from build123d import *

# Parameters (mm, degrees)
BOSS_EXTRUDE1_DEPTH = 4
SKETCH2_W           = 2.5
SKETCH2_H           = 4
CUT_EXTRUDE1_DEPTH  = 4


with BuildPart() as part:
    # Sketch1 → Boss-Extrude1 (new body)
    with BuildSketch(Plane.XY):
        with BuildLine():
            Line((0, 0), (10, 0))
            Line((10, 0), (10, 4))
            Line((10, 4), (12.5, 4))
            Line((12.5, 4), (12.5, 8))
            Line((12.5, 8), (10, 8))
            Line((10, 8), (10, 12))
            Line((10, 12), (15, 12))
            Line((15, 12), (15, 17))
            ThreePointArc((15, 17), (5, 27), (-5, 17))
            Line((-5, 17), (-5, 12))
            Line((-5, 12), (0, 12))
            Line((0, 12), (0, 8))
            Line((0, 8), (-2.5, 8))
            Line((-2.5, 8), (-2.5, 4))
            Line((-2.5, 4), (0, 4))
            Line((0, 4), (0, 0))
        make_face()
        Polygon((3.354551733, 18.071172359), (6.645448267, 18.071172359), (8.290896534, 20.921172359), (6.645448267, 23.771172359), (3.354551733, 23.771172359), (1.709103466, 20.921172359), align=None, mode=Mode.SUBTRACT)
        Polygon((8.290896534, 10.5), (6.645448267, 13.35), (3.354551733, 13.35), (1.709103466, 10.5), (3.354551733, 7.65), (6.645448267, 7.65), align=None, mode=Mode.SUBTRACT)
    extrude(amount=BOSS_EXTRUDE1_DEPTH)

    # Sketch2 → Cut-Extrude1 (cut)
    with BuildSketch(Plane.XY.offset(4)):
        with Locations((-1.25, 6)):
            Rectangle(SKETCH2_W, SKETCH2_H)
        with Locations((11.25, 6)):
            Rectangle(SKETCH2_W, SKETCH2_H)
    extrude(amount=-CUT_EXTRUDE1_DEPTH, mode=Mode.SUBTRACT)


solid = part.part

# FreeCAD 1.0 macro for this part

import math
import FreeCAD as App
import Part
import Sketcher
Q = App.Units.Quantity


def add_polygon(sketch, points):
    """Adds a closed chain of lines whose ends are joined by coincident constraints."""
    first, n = sketch.GeometryCount, len(points)
    for a, b in zip(points, points[1:] + points[:1]):
        sketch.addGeometry(Part.LineSegment(App.Vector(*a, 0), App.Vector(*b, 0)), False)
    for i in range(n):
        sketch.addConstraint(Sketcher.Constraint("Coincident", first + i, 2, first + (i + 1) % n, 1))

doc = App.newDocument("Part")
body = doc.addObject("PartDesign::Body", "Body")

sketch1 = doc.addObject("Sketcher::SketchObject", "Sketch")
body.addObject(sketch1)
sketch1.AttachmentSupport = (doc.XY_Plane, [""])
sketch1.MapMode = "FlatFace"
sketch1.addGeometry(Part.LineSegment(App.Vector(0, 0, 0), App.Vector(10, 0, 0)), False)
sketch1.addGeometry(Part.LineSegment(App.Vector(10, 0, 0), App.Vector(10, 4, 0)), False)
sketch1.addGeometry(Part.LineSegment(App.Vector(10, 4, 0), App.Vector(12.5, 4, 0)), False)
sketch1.addGeometry(Part.LineSegment(App.Vector(12.5, 4, 0), App.Vector(12.5, 8, 0)), False)
sketch1.addGeometry(Part.LineSegment(App.Vector(12.5, 8, 0), App.Vector(10, 8, 0)), False)
sketch1.addGeometry(Part.LineSegment(App.Vector(10, 8, 0), App.Vector(10, 12, 0)), False)
sketch1.addGeometry(Part.LineSegment(App.Vector(10, 12, 0), App.Vector(15, 12, 0)), False)
sketch1.addGeometry(Part.LineSegment(App.Vector(15, 12, 0), App.Vector(15, 17, 0)), False)
sketch1.addGeometry(Part.ArcOfCircle(Part.Circle(App.Vector(5, 17, 0), App.Vector(0, 0, 1), 10), math.radians(0), math.radians(180)), False)
sketch1.addGeometry(Part.LineSegment(App.Vector(-5, 17, 0), App.Vector(-5, 12, 0)), False)
sketch1.addGeometry(Part.LineSegment(App.Vector(-5, 12, 0), App.Vector(0, 12, 0)), False)
sketch1.addGeometry(Part.LineSegment(App.Vector(0, 12, 0), App.Vector(0, 8, 0)), False)
sketch1.addGeometry(Part.LineSegment(App.Vector(0, 8, 0), App.Vector(-2.5, 8, 0)), False)
sketch1.addGeometry(Part.LineSegment(App.Vector(-2.5, 8, 0), App.Vector(-2.5, 4, 0)), False)
sketch1.addGeometry(Part.LineSegment(App.Vector(-2.5, 4, 0), App.Vector(0, 4, 0)), False)
sketch1.addGeometry(Part.LineSegment(App.Vector(0, 4, 0), App.Vector(0, 0, 0)), False)
add_polygon(sketch1, [(6.6, 13.3), (8.3, 10.5), (6.6, 7.7), (3.4, 7.7), (1.7, 10.5), (3.4, 13.3)])
add_polygon(sketch1, [(6.6, 18.1), (3.4, 18.1), (1.7, 20.9), (3.4, 23.8), (6.6, 23.8), (8.3, 20.9)])
sketch1.addConstraint(Sketcher.Constraint("Coincident", 0, 2, 1, 1))
sketch1.addConstraint(Sketcher.Constraint("Coincident", 1, 2, 2, 1))
sketch1.addConstraint(Sketcher.Constraint("Coincident", 2, 2, 3, 1))
sketch1.addConstraint(Sketcher.Constraint("Coincident", 3, 2, 4, 1))
sketch1.addConstraint(Sketcher.Constraint("Coincident", 4, 2, 5, 1))
sketch1.addConstraint(Sketcher.Constraint("Coincident", 5, 2, 6, 1))
sketch1.addConstraint(Sketcher.Constraint("Coincident", 6, 2, 7, 1))
sketch1.addConstraint(Sketcher.Constraint("Tangent", 7, 2, 8, 1))
sketch1.addConstraint(Sketcher.Constraint("Tangent", 8, 2, 9, 1))
sketch1.addConstraint(Sketcher.Constraint("Coincident", 9, 2, 10, 1))
sketch1.addConstraint(Sketcher.Constraint("Coincident", 10, 2, 11, 1))
sketch1.addConstraint(Sketcher.Constraint("Coincident", 11, 2, 12, 1))
sketch1.addConstraint(Sketcher.Constraint("Coincident", 12, 2, 13, 1))
sketch1.addConstraint(Sketcher.Constraint("Coincident", 13, 2, 14, 1))
sketch1.addConstraint(Sketcher.Constraint("Coincident", 14, 2, 15, 1))
sketch1.addConstraint(Sketcher.Constraint("Coincident", 15, 2, 0, 1))
sketch1.addConstraint(Sketcher.Constraint("Horizontal", 0))
sketch1.addConstraint(Sketcher.Constraint("Vertical", 1))
sketch1.addConstraint(Sketcher.Constraint("Horizontal", 2))
sketch1.addConstraint(Sketcher.Constraint("Vertical", 3))
sketch1.addConstraint(Sketcher.Constraint("Horizontal", 4))
sketch1.addConstraint(Sketcher.Constraint("Vertical", 5))
sketch1.addConstraint(Sketcher.Constraint("Horizontal", 6))
sketch1.addConstraint(Sketcher.Constraint("Vertical", 7))
sketch1.addConstraint(Sketcher.Constraint("Vertical", 9))
sketch1.addConstraint(Sketcher.Constraint("Horizontal", 10))
sketch1.addConstraint(Sketcher.Constraint("Vertical", 11))
sketch1.addConstraint(Sketcher.Constraint("Horizontal", 12))
sketch1.addConstraint(Sketcher.Constraint("Vertical", 13))
sketch1.addConstraint(Sketcher.Constraint("Horizontal", 14))
sketch1.addConstraint(Sketcher.Constraint("Vertical", 15))
sketch1.addConstraint(Sketcher.Constraint("Horizontal", 18))
sketch1.addConstraint(Sketcher.Constraint("Horizontal", 21))
sketch1.addConstraint(Sketcher.Constraint("Horizontal", 22))
sketch1.addConstraint(Sketcher.Constraint("Horizontal", 25))
sketch1.addConstraint(Sketcher.Constraint("Coincident", 15, 2, -1, 1))
sketch1.addConstraint(Sketcher.Constraint("PointOnObject", 10, 2, -2))
sketch1.addConstraint(Sketcher.Constraint("Parallel", 16, 19))
sketch1.addConstraint(Sketcher.Constraint("Parallel", 17, 20))
sketch1.addConstraint(Sketcher.Constraint("Parallel", 19, 23))
sketch1.addConstraint(Sketcher.Constraint("Parallel", 20, 24))
sketch1.addConstraint(Sketcher.Constraint("Parallel", 23, 26))
sketch1.addConstraint(Sketcher.Constraint("Parallel", 24, 27))
sketch1.addConstraint(Sketcher.Constraint("Horizontal", 6, 2, 9, 2))
sketch1.addConstraint(Sketcher.Constraint("Horizontal", 4, 2, 11, 2))
sketch1.addConstraint(Sketcher.Constraint("Horizontal", 2, 2, 13, 2))
sketch1.addConstraint(Sketcher.Constraint("Horizontal", 16, 2, 19, 2))
sketch1.addConstraint(Sketcher.Constraint("Horizontal", 23, 2, 26, 2))
sketch1.addConstraint(Sketcher.Constraint("Vertical", 1, 2, 4, 2))
sketch1.addConstraint(Sketcher.Constraint("Vertical", 18, 2, 20, 2))
sketch1.addConstraint(Sketcher.Constraint("Vertical", 17, 2, 21, 2))
sketch1.addConstraint(Sketcher.Constraint("Vertical", 20, 2, 22, 2))
sketch1.addConstraint(Sketcher.Constraint("Vertical", 19, 2, 23, 2))
sketch1.addConstraint(Sketcher.Constraint("Vertical", 22, 2, 24, 2))
sketch1.addConstraint(Sketcher.Constraint("Vertical", 21, 2, 25, 2))
sketch1.addConstraint(Sketcher.Constraint("Equal", 6, 10))
sketch1.addConstraint(Sketcher.Constraint("Equal", 4, 12))
sketch1.addConstraint(Sketcher.Constraint("Equal", 1, 3))
sketch1.addConstraint(Sketcher.Constraint("Equal", 3, 5))
sketch1.addConstraint(Sketcher.Constraint("Equal", 10, 7))
sketch1.addConstraint(Sketcher.Constraint("Radius", 8, 10.0))
sketch1.addConstraint(Sketcher.Constraint("DistanceX", 0, 1, 0, 2, 10.0))
sketch1.addConstraint(Sketcher.Constraint("DistanceY", 1, 1, 1, 2, 4.0))
sketch1.addConstraint(Sketcher.Constraint("Angle", 16, Q("-60 deg")))
sketch1.addConstraint(Sketcher.Constraint("DistanceX", 2, 1, 2, 2, 2.5))
sketch1.addConstraint(Sketcher.Constraint("DistanceY", -1, 1, 16, 2, 10.5))
sketch1.addConstraint(Sketcher.Constraint("DistanceY", 18, 2, 20, 2, 5.7))
sketch1.addConstraint(Sketcher.Constraint("DistanceX", 18, 2, 18, 1, 3.290897))
sketch1.addConstraint(Sketcher.Constraint("DistanceX", -1, 1, 17, 2, 6.645448))
sketch1.addConstraint(Sketcher.Constraint("DistanceY", -1, 1, 22, 2, 18.071172))
pad1 = doc.addObject("PartDesign::Pad", "Pad")
body.addObject(pad1)
pad1.Profile = sketch1
pad1.Length = 4

sketch2 = doc.addObject("Sketcher::SketchObject", "Sketch001")
body.addObject(sketch2)
sketch2.AttachmentSupport = (doc.XY_Plane, [""])
sketch2.MapMode = "FlatFace"
sketch2.AttachmentOffset = App.Placement(App.Vector(0, 0, 4), App.Rotation())
add_polygon(sketch2, [(-2.5, 8), (-2.5, 4), (0, 4), (0, 8)])
add_polygon(sketch2, [(10, 8), (10, 4), (12.5, 4), (12.5, 8)])
sketch2.addConstraint(Sketcher.Constraint("Vertical", 0))
sketch2.addConstraint(Sketcher.Constraint("Horizontal", 1))
sketch2.addConstraint(Sketcher.Constraint("Vertical", 2))
sketch2.addConstraint(Sketcher.Constraint("Horizontal", 3))
sketch2.addConstraint(Sketcher.Constraint("Vertical", 4))
sketch2.addConstraint(Sketcher.Constraint("Horizontal", 5))
sketch2.addConstraint(Sketcher.Constraint("Vertical", 6))
sketch2.addConstraint(Sketcher.Constraint("Horizontal", 7))
sketch2.addConstraint(Sketcher.Constraint("PointOnObject", 1, 2, -2))
sketch2.addConstraint(Sketcher.Constraint("Horizontal", 1, 2, 4, 2))
sketch2.addConstraint(Sketcher.Constraint("Horizontal", 3, 2, 6, 2))
sketch2.addConstraint(Sketcher.Constraint("Equal", 3, 5))
sketch2.addConstraint(Sketcher.Constraint("DistanceY", 0, 2, 0, 1, 4.0))
sketch2.addConstraint(Sketcher.Constraint("DistanceX", 1, 1, 1, 2, 2.5))
sketch2.addConstraint(Sketcher.Constraint("DistanceY", -1, 1, 0, 2, 4.0))
sketch2.addConstraint(Sketcher.Constraint("DistanceX", -1, 1, 4, 2, 10.0))
pocket1 = doc.addObject("PartDesign::Pocket", "Pocket")
body.addObject(pocket1)
pocket1.Profile = sketch2
pocket1.Length = 4

doc.recompute()
